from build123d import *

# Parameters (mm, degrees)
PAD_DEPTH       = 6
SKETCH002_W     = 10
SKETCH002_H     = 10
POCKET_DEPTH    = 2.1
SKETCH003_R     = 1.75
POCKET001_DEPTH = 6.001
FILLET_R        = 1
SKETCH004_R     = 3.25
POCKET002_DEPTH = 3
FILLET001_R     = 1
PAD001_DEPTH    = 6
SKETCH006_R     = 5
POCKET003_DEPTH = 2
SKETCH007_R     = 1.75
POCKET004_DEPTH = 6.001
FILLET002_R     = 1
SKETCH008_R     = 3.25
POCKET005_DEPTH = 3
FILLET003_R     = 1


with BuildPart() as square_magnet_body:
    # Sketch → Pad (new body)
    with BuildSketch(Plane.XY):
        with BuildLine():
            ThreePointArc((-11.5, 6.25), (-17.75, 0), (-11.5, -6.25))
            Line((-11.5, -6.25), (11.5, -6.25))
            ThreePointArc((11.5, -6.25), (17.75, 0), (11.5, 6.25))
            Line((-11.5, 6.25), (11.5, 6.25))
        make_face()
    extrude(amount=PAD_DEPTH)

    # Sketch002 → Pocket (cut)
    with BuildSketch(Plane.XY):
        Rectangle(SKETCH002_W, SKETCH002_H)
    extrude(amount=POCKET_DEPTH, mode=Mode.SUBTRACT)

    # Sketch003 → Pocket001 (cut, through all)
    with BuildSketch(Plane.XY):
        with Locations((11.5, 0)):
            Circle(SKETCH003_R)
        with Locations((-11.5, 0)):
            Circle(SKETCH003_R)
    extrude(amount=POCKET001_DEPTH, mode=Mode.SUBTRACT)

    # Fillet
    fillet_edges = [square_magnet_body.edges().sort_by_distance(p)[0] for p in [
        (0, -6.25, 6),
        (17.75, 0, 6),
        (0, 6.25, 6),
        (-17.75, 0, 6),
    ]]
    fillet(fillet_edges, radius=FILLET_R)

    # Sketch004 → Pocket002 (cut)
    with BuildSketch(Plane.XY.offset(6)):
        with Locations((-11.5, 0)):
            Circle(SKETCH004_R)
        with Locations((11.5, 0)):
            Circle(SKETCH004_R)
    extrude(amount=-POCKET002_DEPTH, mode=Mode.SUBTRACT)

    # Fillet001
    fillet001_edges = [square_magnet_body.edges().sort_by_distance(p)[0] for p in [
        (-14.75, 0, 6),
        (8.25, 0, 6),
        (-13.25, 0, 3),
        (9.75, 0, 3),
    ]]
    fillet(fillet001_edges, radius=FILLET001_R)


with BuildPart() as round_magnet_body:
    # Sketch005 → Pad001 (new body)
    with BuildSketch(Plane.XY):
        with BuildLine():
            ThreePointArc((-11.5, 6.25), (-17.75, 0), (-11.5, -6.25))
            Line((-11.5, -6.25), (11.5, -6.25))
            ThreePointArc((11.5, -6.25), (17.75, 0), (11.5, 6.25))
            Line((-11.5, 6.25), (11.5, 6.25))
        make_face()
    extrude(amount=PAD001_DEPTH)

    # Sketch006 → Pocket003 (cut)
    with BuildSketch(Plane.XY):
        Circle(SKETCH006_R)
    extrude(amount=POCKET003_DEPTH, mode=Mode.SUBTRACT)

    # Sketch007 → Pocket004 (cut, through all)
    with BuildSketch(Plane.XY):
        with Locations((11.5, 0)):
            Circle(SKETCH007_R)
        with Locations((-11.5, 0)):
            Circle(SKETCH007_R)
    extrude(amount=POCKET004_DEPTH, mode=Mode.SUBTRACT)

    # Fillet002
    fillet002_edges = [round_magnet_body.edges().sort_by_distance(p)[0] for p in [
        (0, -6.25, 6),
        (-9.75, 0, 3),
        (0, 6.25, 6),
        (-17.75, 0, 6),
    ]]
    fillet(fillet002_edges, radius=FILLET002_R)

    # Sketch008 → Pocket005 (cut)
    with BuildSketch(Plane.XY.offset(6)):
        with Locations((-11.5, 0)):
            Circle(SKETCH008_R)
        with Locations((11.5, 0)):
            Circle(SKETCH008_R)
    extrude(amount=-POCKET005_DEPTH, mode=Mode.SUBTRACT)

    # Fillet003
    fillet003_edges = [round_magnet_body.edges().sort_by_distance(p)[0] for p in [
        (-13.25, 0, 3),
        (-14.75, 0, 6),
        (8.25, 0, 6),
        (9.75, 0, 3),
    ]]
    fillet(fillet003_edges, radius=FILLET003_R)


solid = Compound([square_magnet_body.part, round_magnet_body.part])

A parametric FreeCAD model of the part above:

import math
import FreeCAD as App
import Part
import Sketcher


def edges_at(feature, points):
    """Names of the edges that pass closest to the given points."""
    edges = feature.Shape.Edges
    near = lambda p: min(range(len(edges)), key=lambda i: edges[i].distToShape(Part.Vertex(*p))[0])
    return sorted({f"Edge{near(p) + 1}" for p in points})

doc = App.newDocument("Part")
body = doc.addObject("PartDesign::Body", "Body")

# Sketch on XY plane
sketch1 = body.newObject("Sketcher::SketchObject", "Sketch")
sketch1.AttachmentSupport = (doc.getObject("XY_Plane"), [""])
sketch1.MapMode = "FlatFace"
sketch1.addGeometry([
    Part.ArcOfCircle(Part.Circle(App.Vector(-12, 0, 0), App.Vector(0, 0, 1), 6), math.radians(90), math.radians(270)),
    Part.LineSegment(App.Vector(-12, -6, 0), App.Vector(12, -6, 0)),
    Part.ArcOfCircle(Part.Circle(App.Vector(12, 0, 0), App.Vector(0, 0, 1), 6), math.radians(-90), math.radians(90)),
    Part.LineSegment(App.Vector(12, 6, 0), App.Vector(-12, 6, 0)),
], False)
sketch1.addConstraint([
    Sketcher.Constraint("Tangent", 0, 2, 1, 1),
    Sketcher.Constraint("Tangent", 1, 2, 2, 1),
    Sketcher.Constraint("Tangent", 2, 2, 3, 1),
    Sketcher.Constraint("Tangent", 3, 2, 0, 1),
    Sketcher.Constraint("Horizontal", 1),
    Sketcher.Constraint("Horizontal", 3),
    Sketcher.Constraint("Symmetric", 0, 3, 2, 3, -1, 1),
    Sketcher.Constraint("DistanceX", 1, 1, 1, 2, 23.0),
    Sketcher.Constraint("Radius", 0, 6.25),
])
pad1 = body.newObject("PartDesign::Pad", "Pad")
pad1.Profile = sketch1
pad1.Length = 6

# Sketch on XY plane
sketch2 = body.newObject("Sketcher::SketchObject", "Sketch001")
sketch2.AttachmentSupport = (doc.getObject("XY_Plane"), [""])
sketch2.MapMode = "FlatFace"
sketch2.addGeometry([
    Part.LineSegment(App.Vector(-5, 5, 0), App.Vector(-5, -5, 0)),
    Part.LineSegment(App.Vector(-5, -5, 0), App.Vector(5, -5, 0)),
    Part.LineSegment(App.Vector(5, -5, 0), App.Vector(5, 5, 0)),
    Part.LineSegment(App.Vector(5, 5, 0), App.Vector(-5, 5, 0)),
], False)
sketch2.addConstraint([
    Sketcher.Constraint("Coincident", 0, 2, 1, 1),
    Sketcher.Constraint("Coincident", 1, 2, 2, 1),
    Sketcher.Constraint("Coincident", 2, 2, 3, 1),
    Sketcher.Constraint("Coincident", 3, 2, 0, 1),
    Sketcher.Constraint("Vertical", 0),
    Sketcher.Constraint("Horizontal", 1),
    Sketcher.Constraint("Vertical", 2),
    Sketcher.Constraint("Horizontal", 3),
    Sketcher.Constraint("Symmetric", 0, 2, 2, 2, -1, 1),
    Sketcher.Constraint("Equal", 3, 0),
    Sketcher.Constraint("DistanceX", 1, 1, 1, 2, 10.0),
])
pocket1 = body.newObject("PartDesign::Pocket", "Pocket")
pocket1.Profile = sketch2
pocket1.Length = 2.1
pocket1.Reversed = True

# Sketch on XY plane
sketch3 = body.newObject("Sketcher::SketchObject", "Sketch002")
sketch3.AttachmentSupport = (doc.getObject("XY_Plane"), [""])
sketch3.MapMode = "FlatFace"
sketch3.addGeometry([
    Part.Circle(App.Vector(11.5, 0, 0), App.Vector(0, 0, 1), 1.8),
    Part.Circle(App.Vector(-11.5, 0, 0), App.Vector(0, 0, 1), 1.8),
], False)
sketch3.addConstraint([
    Sketcher.Constraint("Equal", 0, 1),
    Sketcher.Constraint("Symmetric", 0, 3, 1, 3, -1, 1),
    Sketcher.Constraint("PointOnObject", 0, 3, -1),
    Sketcher.Constraint("Diameter", 0, 3.5),
    Sketcher.Constraint("DistanceX", 1, 3, 0, 3, 23.0),
])
pocket2 = body.newObject("PartDesign::Pocket", "Pocket001")
pocket2.Profile = sketch3
pocket2.Type = "ThroughAll"
pocket2.Reversed = True
doc.recompute()

fillet = body.newObject("PartDesign::Fillet", "Fillet")
fillet.Base = (pocket2, edges_at(pocket2, [
    (0, -6.25, 6),
    (17.75, 0, 6),
    (0, 6.25, 6),
    (-17.75, 0, 6),
]))
fillet.Radius = 1

# Sketch on XY plane
sketch4 = body.newObject("Sketcher::SketchObject", "Sketch003")
sketch4.AttachmentSupport = (doc.getObject("XY_Plane"), [""])
sketch4.MapMode = "FlatFace"
sketch4.AttachmentOffset = App.Placement(App.Vector(0, 0, 6), App.Rotation())
sketch4.addGeometry([
    Part.Circle(App.Vector(-11.5, 0, 0), App.Vector(0, 0, 1), 3.2),
    Part.Circle(App.Vector(11.5, 0, 0), App.Vector(0, 0, 1), 3.2),
], False)
sketch4.addConstraint([
    Sketcher.Constraint("Equal", 0, 1),
    Sketcher.Constraint("Symmetric", 0, 3, 1, 3, -1, 1),
    Sketcher.Constraint("PointOnObject", 0, 3, -1),
    Sketcher.Constraint("Diameter", 0, 6.5),
    Sketcher.Constraint("DistanceX", 0, 3, 1, 3, 23.0),
])
pocket3 = body.newObject("PartDesign::Pocket", "Pocket002")
pocket3.Profile = sketch4
pocket3.Length = 3
doc.recompute()

fillet2 = body.newObject("PartDesign::Fillet", "Fillet001")
fillet2.Base = (pocket3, edges_at(pocket3, [
    (-14.75, 0, 6),
    (8.25, 0, 6),
    (-13.25, 0, 3),
    (9.75, 0, 3),
]))
fillet2.Radius = 1
body2 = doc.addObject("PartDesign::Body", "Body001")

# Sketch on XY plane
sketch5 = body2.newObject("Sketcher::SketchObject", "Sketch004")
sketch5.AttachmentSupport = (doc.getObject("XY_Plane001"), [""])
sketch5.MapMode = "FlatFace"
sketch5.addGeometry([
    Part.ArcOfCircle(Part.Circle(App.Vector(-12, 0, 0), App.Vector(0, 0, 1), 6), math.radians(90), math.radians(270)),
    Part.LineSegment(App.Vector(-12, -6, 0), App.Vector(12, -6, 0)),
    Part.ArcOfCircle(Part.Circle(App.Vector(12, 0, 0), App.Vector(0, 0, 1), 6), math.radians(-90), math.radians(90)),
    Part.LineSegment(App.Vector(12, 6, 0), App.Vector(-12, 6, 0)),
], False)
sketch5.addConstraint([
    Sketcher.Constraint("Tangent", 0, 2, 1, 1),
    Sketcher.Constraint("Tangent", 1, 2, 2, 1),
    Sketcher.Constraint("Tangent", 2, 2, 3, 1),
    Sketcher.Constraint("Tangent", 3, 2, 0, 1),
    Sketcher.Constraint("Horizontal", 1),
    Sketcher.Constraint("Horizontal", 3),
    Sketcher.Constraint("Symmetric", 0, 3, 2, 3, -1, 1),
    Sketcher.Constraint("DistanceX", 1, 1, 1, 2, 23.0),
    Sketcher.Constraint("Radius", 0, 6.25),
])
pad2 = body2.newObject("PartDesign::Pad", "Pad001")
pad2.Profile = sketch5
pad2.Length = 6

# Sketch on XY plane
sketch6 = body2.newObject("Sketcher::SketchObject", "Sketch005")
sketch6.AttachmentSupport = (doc.getObject("XY_Plane001"), [""])
sketch6.MapMode = "FlatFace"
sketch6.addGeometry(Part.Circle(App.Vector(0, 0, 0), App.Vector(0, 0, 1), 5), False)
sketch6.addConstraint([
    Sketcher.Constraint("Coincident", 0, 3, -1, 1),
    Sketcher.Constraint("Diameter", 0, 10.0),
])
pocket4 = body2.newObject("PartDesign::Pocket", "Pocket003")
pocket4.Profile = sketch6
pocket4.Length = 2
pocket4.Reversed = True

# Sketch on XY plane
sketch7 = body2.newObject("Sketcher::SketchObject", "Sketch006")
sketch7.AttachmentSupport = (doc.getObject("XY_Plane001"), [""])
sketch7.MapMode = "FlatFace"
sketch7.addGeometry([
    Part.Circle(App.Vector(11.5, 0, 0), App.Vector(0, 0, 1), 1.8),
    Part.Circle(App.Vector(-11.5, 0, 0), App.Vector(0, 0, 1), 1.8),
], False)
sketch7.addConstraint([
    Sketcher.Constraint("Equal", 0, 1),
    Sketcher.Constraint("Symmetric", 0, 3, 1, 3, -1, 1),
    Sketcher.Constraint("PointOnObject", 0, 3, -1),
    Sketcher.Constraint("Diameter", 0, 3.5),
    Sketcher.Constraint("DistanceX", 1, 3, 0, 3, 23.0),
])
pocket5 = body2.newObject("PartDesign::Pocket", "Pocket004")
pocket5.Profile = sketch7
pocket5.Type = "ThroughAll"
pocket5.Reversed = True
doc.recompute()

fillet3 = body2.newObject("PartDesign::Fillet", "Fillet002")
fillet3.Base = (pocket5, edges_at(pocket5, [
    (0, -6.25, 6),
    (-9.75, 0, 3),
    (0, 6.25, 6),
    (-17.75, 0, 6),
]))
fillet3.Radius = 1

# Sketch on XY plane
sketch8 = body2.newObject("Sketcher::SketchObject", "Sketch007")
sketch8.AttachmentSupport = (doc.getObject("XY_Plane001"), [""])
sketch8.MapMode = "FlatFace"
sketch8.AttachmentOffset = App.Placement(App.Vector(0, 0, 6), App.Rotation())
sketch8.addGeometry([
    Part.Circle(App.Vector(-11.5, 0, 0), App.Vector(0, 0, 1), 3.2),
    Part.Circle(App.Vector(11.5, 0, 0), App.Vector(0, 0, 1), 3.2),
], False)
sketch8.addConstraint([
    Sketcher.Constraint("Equal", 0, 1),
    Sketcher.Constraint("Symmetric", 0, 3, 1, 3, -1, 1),
    Sketcher.Constraint("PointOnObject", 0, 3, -1),
    Sketcher.Constraint("Diameter", 0, 6.5),
    Sketcher.Constraint("DistanceX", 0, 3, 1, 3, 23.0),
])
pocket6 = body2.newObject("PartDesign::Pocket", "Pocket005")
pocket6.Profile = sketch8
pocket6.Length = 3
doc.recompute()

fillet4 = body2.newObject("PartDesign::Fillet", "Fillet003")
fillet4.Base = (pocket6, edges_at(pocket6, [
    (-13.25, 0, 3),
    (-14.75, 0, 6),
    (8.25, 0, 6),
    (9.75, 0, 3),
]))
fillet4.Radius = 1

doc.recompute()
